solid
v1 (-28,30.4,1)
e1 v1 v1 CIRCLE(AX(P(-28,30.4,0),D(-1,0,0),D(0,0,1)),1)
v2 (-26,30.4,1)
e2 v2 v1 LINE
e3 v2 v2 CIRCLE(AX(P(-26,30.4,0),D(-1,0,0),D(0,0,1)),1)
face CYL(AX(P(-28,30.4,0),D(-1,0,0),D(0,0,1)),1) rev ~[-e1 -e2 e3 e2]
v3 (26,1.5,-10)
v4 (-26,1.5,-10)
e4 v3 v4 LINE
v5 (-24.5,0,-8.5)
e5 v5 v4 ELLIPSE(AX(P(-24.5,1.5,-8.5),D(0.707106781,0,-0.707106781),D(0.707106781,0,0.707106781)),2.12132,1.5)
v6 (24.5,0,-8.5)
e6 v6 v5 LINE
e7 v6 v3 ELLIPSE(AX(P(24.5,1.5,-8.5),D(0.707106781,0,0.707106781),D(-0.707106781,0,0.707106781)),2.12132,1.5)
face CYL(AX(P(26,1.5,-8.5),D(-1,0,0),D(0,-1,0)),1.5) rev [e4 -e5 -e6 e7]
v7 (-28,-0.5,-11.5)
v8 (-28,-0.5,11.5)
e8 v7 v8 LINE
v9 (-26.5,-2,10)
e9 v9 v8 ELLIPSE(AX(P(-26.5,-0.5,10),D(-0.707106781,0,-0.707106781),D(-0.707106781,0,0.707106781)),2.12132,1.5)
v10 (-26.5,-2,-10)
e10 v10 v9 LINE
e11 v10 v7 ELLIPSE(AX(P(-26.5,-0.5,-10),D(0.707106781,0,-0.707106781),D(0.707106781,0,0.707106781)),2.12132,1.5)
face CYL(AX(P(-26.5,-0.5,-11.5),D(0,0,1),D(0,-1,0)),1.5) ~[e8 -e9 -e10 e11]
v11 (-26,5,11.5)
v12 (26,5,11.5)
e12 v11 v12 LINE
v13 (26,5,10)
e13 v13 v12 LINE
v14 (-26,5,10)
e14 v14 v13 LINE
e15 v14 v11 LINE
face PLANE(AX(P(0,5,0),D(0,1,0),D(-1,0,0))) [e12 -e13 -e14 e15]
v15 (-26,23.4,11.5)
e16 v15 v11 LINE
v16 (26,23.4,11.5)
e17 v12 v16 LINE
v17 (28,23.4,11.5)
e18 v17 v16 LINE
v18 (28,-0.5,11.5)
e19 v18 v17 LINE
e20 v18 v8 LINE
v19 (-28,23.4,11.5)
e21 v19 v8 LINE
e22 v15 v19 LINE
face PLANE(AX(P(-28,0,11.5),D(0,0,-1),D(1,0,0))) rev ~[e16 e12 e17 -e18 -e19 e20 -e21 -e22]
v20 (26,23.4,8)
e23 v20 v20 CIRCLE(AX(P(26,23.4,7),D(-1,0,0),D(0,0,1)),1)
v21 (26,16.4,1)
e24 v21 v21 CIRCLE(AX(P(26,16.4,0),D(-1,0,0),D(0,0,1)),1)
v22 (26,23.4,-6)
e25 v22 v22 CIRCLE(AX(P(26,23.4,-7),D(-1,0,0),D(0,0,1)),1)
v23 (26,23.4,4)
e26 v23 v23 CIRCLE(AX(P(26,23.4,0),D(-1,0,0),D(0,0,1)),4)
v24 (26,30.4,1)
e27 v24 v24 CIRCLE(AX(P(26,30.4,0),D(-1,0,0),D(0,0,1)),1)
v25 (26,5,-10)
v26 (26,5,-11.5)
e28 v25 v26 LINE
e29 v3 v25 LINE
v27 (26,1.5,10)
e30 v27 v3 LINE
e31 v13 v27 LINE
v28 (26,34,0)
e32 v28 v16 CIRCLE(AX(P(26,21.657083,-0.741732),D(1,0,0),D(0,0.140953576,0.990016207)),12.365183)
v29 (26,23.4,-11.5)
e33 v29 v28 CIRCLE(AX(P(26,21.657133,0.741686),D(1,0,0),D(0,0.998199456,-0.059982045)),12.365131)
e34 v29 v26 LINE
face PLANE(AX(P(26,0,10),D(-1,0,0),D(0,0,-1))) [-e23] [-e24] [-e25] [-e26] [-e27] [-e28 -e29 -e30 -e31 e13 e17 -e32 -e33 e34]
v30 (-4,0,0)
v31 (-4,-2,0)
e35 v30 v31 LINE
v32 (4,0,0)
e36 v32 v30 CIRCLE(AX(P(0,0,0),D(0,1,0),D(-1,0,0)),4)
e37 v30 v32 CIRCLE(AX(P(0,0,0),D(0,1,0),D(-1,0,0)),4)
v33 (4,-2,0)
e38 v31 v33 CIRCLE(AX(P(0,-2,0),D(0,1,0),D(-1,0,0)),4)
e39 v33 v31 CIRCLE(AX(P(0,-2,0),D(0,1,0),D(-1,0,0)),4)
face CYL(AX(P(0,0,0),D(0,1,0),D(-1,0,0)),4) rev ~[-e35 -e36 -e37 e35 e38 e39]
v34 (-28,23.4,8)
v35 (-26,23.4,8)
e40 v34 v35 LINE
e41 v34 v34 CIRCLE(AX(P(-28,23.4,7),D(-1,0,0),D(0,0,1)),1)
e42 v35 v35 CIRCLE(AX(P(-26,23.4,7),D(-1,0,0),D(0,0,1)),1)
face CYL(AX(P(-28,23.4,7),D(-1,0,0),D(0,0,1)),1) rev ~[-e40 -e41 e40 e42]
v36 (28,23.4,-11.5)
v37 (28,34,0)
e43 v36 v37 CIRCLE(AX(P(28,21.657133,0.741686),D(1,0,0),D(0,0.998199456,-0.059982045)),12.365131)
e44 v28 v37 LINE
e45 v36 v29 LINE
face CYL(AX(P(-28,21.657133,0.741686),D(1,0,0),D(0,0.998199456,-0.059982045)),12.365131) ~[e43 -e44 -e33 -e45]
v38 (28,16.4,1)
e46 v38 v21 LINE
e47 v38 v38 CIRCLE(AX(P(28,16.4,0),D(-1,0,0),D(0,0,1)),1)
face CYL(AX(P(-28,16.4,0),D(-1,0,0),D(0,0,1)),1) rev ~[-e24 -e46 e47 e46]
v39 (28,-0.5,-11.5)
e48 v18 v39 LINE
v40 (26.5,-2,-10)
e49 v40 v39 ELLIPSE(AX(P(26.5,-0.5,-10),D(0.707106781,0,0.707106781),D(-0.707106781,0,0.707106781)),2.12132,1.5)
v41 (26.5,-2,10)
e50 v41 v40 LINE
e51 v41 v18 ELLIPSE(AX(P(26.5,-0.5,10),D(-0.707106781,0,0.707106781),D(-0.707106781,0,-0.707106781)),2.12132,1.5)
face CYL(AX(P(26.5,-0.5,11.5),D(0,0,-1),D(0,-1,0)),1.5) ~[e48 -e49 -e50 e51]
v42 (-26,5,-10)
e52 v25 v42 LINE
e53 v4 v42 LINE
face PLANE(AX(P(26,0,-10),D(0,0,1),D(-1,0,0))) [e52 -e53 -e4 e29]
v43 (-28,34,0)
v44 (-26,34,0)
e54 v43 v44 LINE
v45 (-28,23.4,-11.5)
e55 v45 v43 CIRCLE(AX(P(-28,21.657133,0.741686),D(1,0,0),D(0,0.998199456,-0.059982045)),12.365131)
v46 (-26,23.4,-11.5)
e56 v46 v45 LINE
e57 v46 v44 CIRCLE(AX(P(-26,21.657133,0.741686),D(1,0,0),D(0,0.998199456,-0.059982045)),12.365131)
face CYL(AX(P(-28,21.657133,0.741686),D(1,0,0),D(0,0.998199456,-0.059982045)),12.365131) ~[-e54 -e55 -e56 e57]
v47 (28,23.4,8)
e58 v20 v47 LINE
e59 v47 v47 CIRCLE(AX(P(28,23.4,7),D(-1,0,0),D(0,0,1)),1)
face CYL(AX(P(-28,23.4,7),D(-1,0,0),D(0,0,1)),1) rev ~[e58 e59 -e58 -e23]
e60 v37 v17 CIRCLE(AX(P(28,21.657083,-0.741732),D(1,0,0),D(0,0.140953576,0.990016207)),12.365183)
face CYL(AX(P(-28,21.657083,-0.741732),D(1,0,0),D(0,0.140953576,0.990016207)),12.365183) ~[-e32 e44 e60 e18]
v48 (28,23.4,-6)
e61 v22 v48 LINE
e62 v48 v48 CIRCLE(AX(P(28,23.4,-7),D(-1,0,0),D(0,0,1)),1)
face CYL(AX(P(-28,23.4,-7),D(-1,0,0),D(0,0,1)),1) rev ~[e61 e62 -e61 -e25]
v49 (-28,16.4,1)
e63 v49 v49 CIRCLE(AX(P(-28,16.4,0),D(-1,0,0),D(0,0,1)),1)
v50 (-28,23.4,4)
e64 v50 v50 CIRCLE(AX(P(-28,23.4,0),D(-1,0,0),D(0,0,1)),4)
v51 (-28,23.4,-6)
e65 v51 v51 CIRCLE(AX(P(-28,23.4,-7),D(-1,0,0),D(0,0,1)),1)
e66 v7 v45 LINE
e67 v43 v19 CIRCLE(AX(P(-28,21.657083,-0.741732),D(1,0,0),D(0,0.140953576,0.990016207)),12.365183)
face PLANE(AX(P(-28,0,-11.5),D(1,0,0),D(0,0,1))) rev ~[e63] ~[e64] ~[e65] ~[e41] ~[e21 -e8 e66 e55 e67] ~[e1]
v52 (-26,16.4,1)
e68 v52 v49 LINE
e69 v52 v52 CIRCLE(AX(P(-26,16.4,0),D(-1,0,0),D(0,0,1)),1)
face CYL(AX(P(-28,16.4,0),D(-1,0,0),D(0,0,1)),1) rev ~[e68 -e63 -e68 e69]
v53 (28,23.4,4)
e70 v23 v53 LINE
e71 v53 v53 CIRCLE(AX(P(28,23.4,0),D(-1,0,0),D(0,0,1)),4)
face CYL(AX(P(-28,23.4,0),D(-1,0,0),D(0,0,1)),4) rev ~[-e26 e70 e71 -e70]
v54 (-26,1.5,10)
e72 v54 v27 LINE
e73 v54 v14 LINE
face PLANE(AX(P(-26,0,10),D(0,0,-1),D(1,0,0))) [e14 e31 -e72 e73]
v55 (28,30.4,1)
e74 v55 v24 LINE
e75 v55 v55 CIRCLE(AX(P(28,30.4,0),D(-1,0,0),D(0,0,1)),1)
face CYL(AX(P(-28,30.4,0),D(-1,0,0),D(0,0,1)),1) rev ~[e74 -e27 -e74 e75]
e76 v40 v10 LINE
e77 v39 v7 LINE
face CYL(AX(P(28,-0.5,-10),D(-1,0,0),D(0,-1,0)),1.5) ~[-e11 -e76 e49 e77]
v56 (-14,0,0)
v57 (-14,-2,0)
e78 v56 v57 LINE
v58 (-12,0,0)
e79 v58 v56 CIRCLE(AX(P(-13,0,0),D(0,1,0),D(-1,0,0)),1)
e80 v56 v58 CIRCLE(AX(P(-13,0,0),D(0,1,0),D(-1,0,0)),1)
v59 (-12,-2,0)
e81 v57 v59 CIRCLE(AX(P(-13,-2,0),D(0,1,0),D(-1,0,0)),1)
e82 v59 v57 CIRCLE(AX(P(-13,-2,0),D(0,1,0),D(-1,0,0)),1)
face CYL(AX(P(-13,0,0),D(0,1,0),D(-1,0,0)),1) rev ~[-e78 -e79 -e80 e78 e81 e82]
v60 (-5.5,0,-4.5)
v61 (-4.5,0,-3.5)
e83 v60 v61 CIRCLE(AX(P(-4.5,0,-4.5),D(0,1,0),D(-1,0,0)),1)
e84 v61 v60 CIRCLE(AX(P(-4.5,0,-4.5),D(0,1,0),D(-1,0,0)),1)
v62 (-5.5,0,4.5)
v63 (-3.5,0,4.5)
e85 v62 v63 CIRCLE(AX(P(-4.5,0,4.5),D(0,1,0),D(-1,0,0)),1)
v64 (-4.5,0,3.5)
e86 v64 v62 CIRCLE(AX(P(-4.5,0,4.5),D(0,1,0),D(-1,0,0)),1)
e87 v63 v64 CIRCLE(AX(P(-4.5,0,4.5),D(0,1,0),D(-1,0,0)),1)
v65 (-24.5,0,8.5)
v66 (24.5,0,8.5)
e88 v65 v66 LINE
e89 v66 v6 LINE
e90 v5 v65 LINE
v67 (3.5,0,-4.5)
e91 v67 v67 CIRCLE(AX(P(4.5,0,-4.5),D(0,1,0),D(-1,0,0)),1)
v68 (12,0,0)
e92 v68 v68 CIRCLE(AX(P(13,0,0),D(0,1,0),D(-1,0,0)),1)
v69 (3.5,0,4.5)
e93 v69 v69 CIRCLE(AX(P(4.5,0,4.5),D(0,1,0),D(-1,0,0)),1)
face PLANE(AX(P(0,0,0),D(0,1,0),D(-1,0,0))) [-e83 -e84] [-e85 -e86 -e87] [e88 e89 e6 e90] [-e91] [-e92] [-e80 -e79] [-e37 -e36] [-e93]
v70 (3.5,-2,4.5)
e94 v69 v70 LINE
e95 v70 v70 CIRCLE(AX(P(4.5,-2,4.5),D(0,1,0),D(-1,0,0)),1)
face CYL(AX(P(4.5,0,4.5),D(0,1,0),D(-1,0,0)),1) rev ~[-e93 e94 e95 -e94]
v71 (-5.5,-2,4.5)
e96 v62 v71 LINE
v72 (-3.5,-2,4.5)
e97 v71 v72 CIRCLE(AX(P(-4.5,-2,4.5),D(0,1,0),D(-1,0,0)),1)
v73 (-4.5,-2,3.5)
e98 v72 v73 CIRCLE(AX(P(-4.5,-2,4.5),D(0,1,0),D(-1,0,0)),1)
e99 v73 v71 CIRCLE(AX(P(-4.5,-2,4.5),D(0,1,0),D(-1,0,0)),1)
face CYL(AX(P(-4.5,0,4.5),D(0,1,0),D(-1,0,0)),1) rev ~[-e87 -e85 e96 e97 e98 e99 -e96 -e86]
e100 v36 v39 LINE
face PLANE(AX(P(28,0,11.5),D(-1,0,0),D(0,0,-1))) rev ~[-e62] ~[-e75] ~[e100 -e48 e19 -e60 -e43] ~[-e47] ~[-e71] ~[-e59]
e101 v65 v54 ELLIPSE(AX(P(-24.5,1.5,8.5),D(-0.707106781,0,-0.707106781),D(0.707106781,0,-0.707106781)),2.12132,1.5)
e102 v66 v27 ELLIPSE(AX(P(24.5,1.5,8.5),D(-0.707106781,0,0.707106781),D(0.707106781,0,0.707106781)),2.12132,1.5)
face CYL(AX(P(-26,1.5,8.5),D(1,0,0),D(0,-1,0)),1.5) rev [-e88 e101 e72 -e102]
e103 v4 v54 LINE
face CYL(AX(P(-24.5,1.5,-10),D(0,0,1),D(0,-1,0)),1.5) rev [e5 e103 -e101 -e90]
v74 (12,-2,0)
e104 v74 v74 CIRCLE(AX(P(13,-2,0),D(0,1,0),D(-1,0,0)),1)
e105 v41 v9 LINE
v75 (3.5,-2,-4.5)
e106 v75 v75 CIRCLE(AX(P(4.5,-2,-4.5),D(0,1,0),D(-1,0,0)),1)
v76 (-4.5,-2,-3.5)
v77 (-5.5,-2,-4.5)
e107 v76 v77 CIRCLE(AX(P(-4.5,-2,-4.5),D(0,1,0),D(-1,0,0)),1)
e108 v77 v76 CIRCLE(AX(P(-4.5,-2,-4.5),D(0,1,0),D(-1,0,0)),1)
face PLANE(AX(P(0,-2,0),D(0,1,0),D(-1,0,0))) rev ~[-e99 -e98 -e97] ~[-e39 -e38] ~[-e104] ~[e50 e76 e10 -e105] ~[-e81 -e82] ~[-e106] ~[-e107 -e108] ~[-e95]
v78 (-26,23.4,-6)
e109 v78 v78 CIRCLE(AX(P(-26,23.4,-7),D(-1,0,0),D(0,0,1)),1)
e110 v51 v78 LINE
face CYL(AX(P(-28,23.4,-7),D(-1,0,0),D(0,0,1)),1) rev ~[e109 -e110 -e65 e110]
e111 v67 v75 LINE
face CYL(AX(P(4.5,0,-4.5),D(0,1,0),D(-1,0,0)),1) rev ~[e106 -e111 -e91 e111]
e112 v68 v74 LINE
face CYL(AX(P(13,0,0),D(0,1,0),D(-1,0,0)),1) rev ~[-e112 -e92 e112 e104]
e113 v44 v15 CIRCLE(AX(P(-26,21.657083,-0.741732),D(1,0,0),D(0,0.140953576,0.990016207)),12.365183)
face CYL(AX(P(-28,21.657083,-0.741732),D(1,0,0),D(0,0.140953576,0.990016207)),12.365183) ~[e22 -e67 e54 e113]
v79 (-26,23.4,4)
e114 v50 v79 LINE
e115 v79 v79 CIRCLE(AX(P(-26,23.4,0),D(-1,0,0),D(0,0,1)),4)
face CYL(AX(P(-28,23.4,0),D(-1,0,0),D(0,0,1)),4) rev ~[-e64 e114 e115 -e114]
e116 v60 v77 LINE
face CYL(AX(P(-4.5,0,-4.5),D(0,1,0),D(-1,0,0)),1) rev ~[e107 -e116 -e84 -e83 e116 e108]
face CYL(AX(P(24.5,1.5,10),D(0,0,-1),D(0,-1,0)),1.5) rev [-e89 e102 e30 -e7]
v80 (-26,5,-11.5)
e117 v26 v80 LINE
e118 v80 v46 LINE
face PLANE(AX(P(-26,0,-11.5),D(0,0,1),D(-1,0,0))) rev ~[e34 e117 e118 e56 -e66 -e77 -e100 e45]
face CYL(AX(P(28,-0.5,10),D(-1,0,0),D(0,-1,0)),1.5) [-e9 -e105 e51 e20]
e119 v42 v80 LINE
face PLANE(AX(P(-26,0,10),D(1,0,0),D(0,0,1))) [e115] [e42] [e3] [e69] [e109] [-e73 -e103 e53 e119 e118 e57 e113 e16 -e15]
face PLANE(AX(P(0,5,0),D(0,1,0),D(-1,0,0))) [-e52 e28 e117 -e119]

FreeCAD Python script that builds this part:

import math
import FreeCAD as App
import Part
import Sketcher
from FreeCAD import Vector
Q = App.Units.Quantity


def edges_at(feature, points):
    """Names of the edges that pass closest to the given points."""
    edges = feature.Shape.Edges
    near = lambda p: min(range(len(edges)), key=lambda i: edges[i].distToShape(Part.Vertex(*p))[0])
    return sorted({f"Edge{near(p) + 1}" for p in points})


def add_polygon(sketch, points):
    """Adds a closed chain of lines whose ends are joined by coincident constraints."""
    first, n = sketch.GeometryCount, len(points)
    for a, b in zip(points, points[1:] + points[:1]):
        sketch.addGeometry(Part.LineSegment(App.Vector(*a, 0), App.Vector(*b, 0)), False)
    for i in range(n):
        sketch.addConstraint(Sketcher.Constraint("Coincident", first + i, 2, first + (i + 1) % n, 1))

doc = App.newDocument("Part")
body = doc.addObject("PartDesign::Body", "Body")
body.AllowCompound = True

sketch1 = body.newObject("Sketcher::SketchObject", "Sketch")
sketch1.AttachmentSupport = (doc.getObject("XZ_Plane"), [""])
sketch1.MapMode = "FlatFace"
add_polygon(sketch1, [(-26, 11.5), (-26, -11.5), (-28, -11.5), (-28, 11.5)])
add_polygon(sketch1, [(26, -11.5), (26, 11.5), (28, 11.5), (28, -11.5)])
sketch1.addConstraint(Sketcher.Constraint("Vertical", 0))
sketch1.addConstraint(Sketcher.Constraint("Horizontal", 1))
sketch1.addConstraint(Sketcher.Constraint("Vertical", 2))
sketch1.addConstraint(Sketcher.Constraint("Horizontal", 3))
sketch1.addConstraint(Sketcher.Constraint("Vertical", 4))
sketch1.addConstraint(Sketcher.Constraint("Horizontal", 5))
sketch1.addConstraint(Sketcher.Constraint("Vertical", 6))
sketch1.addConstraint(Sketcher.Constraint("Horizontal", 7))
sketch1.addConstraint(Sketcher.Constraint("Symmetric", 0, 2, 4, 2, -1, 1))
sketch1.addConstraint(Sketcher.Constraint("Symmetric", 2, 2, 6, 2, -1, 1))
sketch1.addConstraint(Sketcher.Constraint("Horizontal", 3, 2, 4, 2))
sketch1.addConstraint(Sketcher.Constraint("DistanceX", 1, 2, 1, 1, Q("2 mm")))
sketch1.addConstraint(Sketcher.Constraint("DistanceY", 0, 2, 0, 1, Q("23 mm")))
sketch1.addConstraint(Sketcher.Constraint("DistanceX", 0, 2, -1, 1, Q("26 mm")))
pad1 = body.newObject("PartDesign::Pad", "Pad")
pad1.Profile = sketch1
pad1.Type = "TwoLengths"
pad1.Length = 34
pad1.Length2 = 2
pad1.Reversed = True

sketch2 = body.newObject("Sketcher::SketchObject", "Sketch001")
sketch2.AttachmentSupport = (doc.getObject("XZ_Plane"), [""])
sketch2.MapMode = "FlatFace"
add_polygon(sketch2, [(26, 10), (-26, 10), (-26, 11.5), (26, 11.5)])
add_polygon(sketch2, [(-26, -11.5), (-26, -10), (26, -10), (26, -11.5)])
sketch2.addConstraint(Sketcher.Constraint("Horizontal", 0))
sketch2.addConstraint(Sketcher.Constraint("Vertical", 1))
sketch2.addConstraint(Sketcher.Constraint("Horizontal", 2))
sketch2.addConstraint(Sketcher.Constraint("Vertical", 3))
sketch2.addConstraint(Sketcher.Constraint("Vertical", 4))
sketch2.addConstraint(Sketcher.Constraint("Horizontal", 5))
sketch2.addConstraint(Sketcher.Constraint("Vertical", 6))
sketch2.addConstraint(Sketcher.Constraint("Horizontal", 7))
sketch2.addConstraint(Sketcher.Constraint("Symmetric", 3, 2, 4, 2, -1, 1))
sketch2.addConstraint(Sketcher.Constraint("Symmetric", 1, 2, 6, 2, -1, 1))
sketch2.addConstraint(Sketcher.Constraint("Vertical", 1, 2, 4, 2))
sketch2.addConstraint(Sketcher.Constraint("DistanceX", 0, 2, 0, 1, Q("52 mm")))
sketch2.addConstraint(Sketcher.Constraint("DistanceY", 4, 2, 0, 2, Q("20 mm")))
sketch2.addConstraint(Sketcher.Constraint("DistanceY", 6, 2, 2, 2, Q("23 mm")))
pad2 = body.newObject("PartDesign::Pad", "Pad001")
pad2.Profile = sketch2
pad2.Type = "TwoLengths"
pad2.Length = 5
pad2.Length2 = 2
pad2.Reversed = True

sketch3 = body.newObject("Sketcher::SketchObject", "Sketch002")
sketch3.AttachmentSupport = (doc.getObject("XZ_Plane"), [""])
sketch3.MapMode = "FlatFace"
add_polygon(sketch3, [(-26, -10), (-26, 10), (26, 10), (26, -10)])
sketch3.addGeometry(Part.Circle(Vector(4.5, -4.5, 0), Vector(0, 0, 1), 1), False)
sketch3.addGeometry(Part.Circle(Vector(-4.5, -4.5, 0), Vector(0, 0, 1), 1), False)
sketch3.addGeometry(Part.Circle(Vector(13, 0, 0), Vector(0, 0, 1), 1), False)
sketch3.addGeometry(Part.Circle(Vector(4.5, 4.5, 0), Vector(0, 0, 1), 1), False)
sketch3.addGeometry(Part.ArcOfCircle(Part.Circle(Vector(0, 0, 0), Vector(0, 0, 1), 4), math.radians(0), math.radians(180)), False)
sketch3.addGeometry(Part.ArcOfCircle(Part.Circle(Vector(0, 0, 0), Vector(0, 0, 1), 4), math.radians(180), math.radians(360)), False)
sketch3.addGeometry(Part.Circle(Vector(-13, 0, 0), Vector(0, 0, 1), 1), False)
sketch3.addGeometry(Part.ArcOfCircle(Part.Circle(Vector(-4.5, 4.5, 0), Vector(0, 0, 1), 1), math.radians(0), math.radians(270)), False)
sketch3.addGeometry(Part.ArcOfCircle(Part.Circle(Vector(-4.5, 4.5, 0), Vector(0, 0, 1), 1), math.radians(-90), math.radians(0)), False)
sketch3.addConstraint(Sketcher.Constraint("Tangent", 8, 1, 9, 2))
sketch3.addConstraint(Sketcher.Constraint("Coincident", 9, 1, 8, 2))
sketch3.addConstraint(Sketcher.Constraint("Tangent", 11, 1, 12, 2))
sketch3.addConstraint(Sketcher.Constraint("Coincident", 12, 1, 11, 2))
sketch3.addConstraint(Sketcher.Constraint("Vertical", 0))
sketch3.addConstraint(Sketcher.Constraint("Horizontal", 1))
sketch3.addConstraint(Sketcher.Constraint("Vertical", 2))
sketch3.addConstraint(Sketcher.Constraint("Horizontal", 3))
sketch3.addConstraint(Sketcher.Constraint("Coincident", 8, 3, -1, 1))
sketch3.addConstraint(Sketcher.Constraint("Equal", 4, 5))
sketch3.addConstraint(Sketcher.Constraint("Equal", 5, 6))
sketch3.addConstraint(Sketcher.Constraint("Equal", 6, 7))
sketch3.addConstraint(Sketcher.Constraint("Equal", 7, 10))
sketch3.addConstraint(Sketcher.Constraint("Equal", 10, 11))
sketch3.addConstraint(Sketcher.Constraint("Symmetric", 5, 3, 7, 3, -1, 1))
sketch3.addConstraint(Sketcher.Constraint("Symmetric", 6, 3, 10, 3, -1, 1))
sketch3.addConstraint(Sketcher.Constraint("Symmetric", 4, 3, 11, 3, -1, 1))
sketch3.addConstraint(Sketcher.Constraint("Symmetric", 0, 2, 2, 2, -1, 1))
sketch3.addConstraint(Sketcher.Constraint("Symmetric", 4, 3, 5, 3, -2))
sketch3.addConstraint(Sketcher.Constraint("PointOnObject", 6, 3, -1))
sketch3.addConstraint(Sketcher.Constraint("PointOnObject", 8, 1, -1))
sketch3.addConstraint(Sketcher.Constraint("PointOnObject", 9, 1, -1))
sketch3.addConstraint(Sketcher.Constraint("Horizontal", 12, 3, 11, 1))
sketch3.addConstraint(Sketcher.Constraint("Vertical", 11, 3, 12, 1))
sketch3.addConstraint(Sketcher.Constraint("Diameter", 4, Q("2 mm")))
sketch3.addConstraint(Sketcher.Constraint("Radius", 8, Q("4 mm")))
sketch3.addConstraint(Sketcher.Constraint("DistanceX", 1, 1, 1, 2, Q("52 mm")))
sketch3.addConstraint(Sketcher.Constraint("DistanceY", 0, 1, 0, 2, Q("20 mm")))
sketch3.addConstraint(Sketcher.Constraint("DistanceX", 5, 3, 4, 3, Q("9 mm")))
sketch3.addConstraint(Sketcher.Constraint("DistanceY", 4, 3, 7, 3, Q("9 mm")))
sketch3.addConstraint(Sketcher.Constraint("DistanceX", 8, 1, 6, 3, Q("9 mm")))
pad3 = body.newObject("PartDesign::Pad", "Pad002")
pad3.Profile = sketch3
pad3.Length = 2

sketch4 = body.newObject("Sketcher::SketchObject", "Sketch003")
sketch4.AttachmentSupport = (doc.getObject("YZ_Plane"), [""])
sketch4.MapMode = "FlatFace"
sketch4.AttachmentOffset = App.Placement(Vector(0, 0, -28), App.Rotation())
sketch4.addGeometry(Part.Circle(Vector(16.4, 0, 0), Vector(0, 0, 1), 1), False)
sketch4.addGeometry(Part.Circle(Vector(23.4, 0, 0), Vector(0, 0, 1), 4), False)
sketch4.addGeometry(Part.Circle(Vector(23.4, -7, 0), Vector(0, 0, 1), 1), False)
sketch4.addGeometry(Part.Circle(Vector(23.4, 7, 0), Vector(0, 0, 1), 1), False)
sketch4.addGeometry(Part.Circle(Vector(30.4, 0, 0), Vector(0, 0, 1), 1), False)
sketch4.addConstraint(Sketcher.Constraint("Equal", 0, 2))
sketch4.addConstraint(Sketcher.Constraint("Equal", 2, 3))
sketch4.addConstraint(Sketcher.Constraint("Equal", 3, 4))
sketch4.addConstraint(Sketcher.Constraint("Symmetric", 2, 3, 3, 3, -1))
sketch4.addConstraint(Sketcher.Constraint("PointOnObject", 0, 3, -1))
sketch4.addConstraint(Sketcher.Constraint("PointOnObject", 1, 3, -1))
sketch4.addConstraint(Sketcher.Constraint("PointOnObject", 4, 3, -1))
sketch4.addConstraint(Sketcher.Constraint("Vertical", 1, 3, 2, 3))
sketch4.addConstraint(Sketcher.Constraint("Diameter", 0, Q("2 mm")))
sketch4.addConstraint(Sketcher.Constraint("Diameter", 1, Q("8 mm")))
sketch4.addConstraint(Sketcher.Constraint("DistanceY", 2, 3, -1, 1, Q("7 mm")))
sketch4.addConstraint(Sketcher.Constraint("DistanceX", 0, 3, 1, 3, Q("7 mm")))
sketch4.addConstraint(Sketcher.Constraint("DistanceX", 1, 3, 4, 3, Q("7 mm")))
sketch4.addConstraint(Sketcher.Constraint("DistanceX", -1, 1, 1, 3, Q("23.4 mm")))
pocket1 = body.newObject("PartDesign::Pocket", "Pocket")
pocket1.Profile = sketch4
pocket1.Type = "ThroughAll"
pocket1.Midplane = True

sketch5 = body.newObject("Sketcher::SketchObject", "Sketch004")
sketch5.AttachmentSupport = (doc.getObject("YZ_Plane"), [""])
sketch5.MapMode = "FlatFace"
sketch5.AttachmentOffset = App.Placement(Vector(0, 0, -28), App.Rotation())
sketch5.addGeometry(Part.LineSegment(Vector(34, -11.5, 0), Vector(23.4, -11.5, 0)), False)
sketch5.addGeometry(Part.ArcOfCircle(Part.Circle(Vector(21.6571, 0.7417, 0), Vector(0, 0, 1), 12.365165), math.radians(-81.897027), math.radians(-3.438838)), False)
sketch5.addGeometry(Part.LineSegment(Vector(34, 0, 0), Vector(34, -11.5, 0)), False)
sketch5.addGeometry(Part.LineSegment(Vector(34, 11.5, 0), Vector(34, 0, 0)), False)
sketch5.addGeometry(Part.ArcOfCircle(Part.Circle(Vector(21.6571, -0.7417, 0), Vector(0, 0, 1), 12.365149), math.radians(3.438838), math.radians(81.897027)), False)
sketch5.addGeometry(Part.LineSegment(Vector(23.4, 11.5, 0), Vector(34, 11.5, 0)), False)
sketch5.addConstraint(Sketcher.Constraint("Coincident", 0, 2, 1, 1))
sketch5.addConstraint(Sketcher.Constraint("Coincident", 1, 2, 2, 1))
sketch5.addConstraint(Sketcher.Constraint("Coincident", 2, 2, 0, 1))
sketch5.addConstraint(Sketcher.Constraint("Coincident", 3, 2, 4, 1))
sketch5.addConstraint(Sketcher.Constraint("Coincident", 4, 2, 5, 1))
sketch5.addConstraint(Sketcher.Constraint("Coincident", 5, 2, 3, 1))
sketch5.addConstraint(Sketcher.Constraint("Horizontal", 0))
sketch5.addConstraint(Sketcher.Constraint("Vertical", 2))
sketch5.addConstraint(Sketcher.Constraint("Vertical", 3))
sketch5.addConstraint(Sketcher.Constraint("Horizontal", 5))
sketch5.addConstraint(Sketcher.Constraint("Coincident", 3, 2, 1, 2))
sketch5.addConstraint(Sketcher.Constraint("Equal", 1, 4))
sketch5.addConstraint(Sketcher.Constraint("Symmetric", 1, 3, 4, 3, -1))
sketch5.addConstraint(Sketcher.Constraint("Vertical", 0, 2, 4, 2))
sketch5.addConstraint(Sketcher.Constraint("DistanceX", -1, 1, 1, 2, Q("34 mm")))
sketch5.addConstraint(Sketcher.Constraint("DistanceX", -1, 1, 0, 2, Q("23.4 mm")))
sketch5.addConstraint(Sketcher.Constraint("DistanceY", 2, 2, 2, 1, Q("11.5 mm")))
sketch5.addConstraint(Sketcher.Constraint("Radius", 1, Q("12.3652 mm")))
pocket2 = body.newObject("PartDesign::Pocket", "Pocket001")
pocket2.Profile = sketch5
pocket2.Type = "ThroughAll"
pocket2.Midplane = True
doc.recompute()

fillet = body.newObject("PartDesign::Fillet", "Fillet")
fillet.Base = (pocket2, edges_at(pocket2, [
    (0, 0, 10),
    (-26, 0, 0),
    (0, 0, -10),
    (26, 0, 0),
    (0, -2, 11.5),
    (-28, -2, 0),
    (0, -2, -11.5),
    (28, -2, 0),
]))
fillet.Radius = 1.5

doc.recompute()
